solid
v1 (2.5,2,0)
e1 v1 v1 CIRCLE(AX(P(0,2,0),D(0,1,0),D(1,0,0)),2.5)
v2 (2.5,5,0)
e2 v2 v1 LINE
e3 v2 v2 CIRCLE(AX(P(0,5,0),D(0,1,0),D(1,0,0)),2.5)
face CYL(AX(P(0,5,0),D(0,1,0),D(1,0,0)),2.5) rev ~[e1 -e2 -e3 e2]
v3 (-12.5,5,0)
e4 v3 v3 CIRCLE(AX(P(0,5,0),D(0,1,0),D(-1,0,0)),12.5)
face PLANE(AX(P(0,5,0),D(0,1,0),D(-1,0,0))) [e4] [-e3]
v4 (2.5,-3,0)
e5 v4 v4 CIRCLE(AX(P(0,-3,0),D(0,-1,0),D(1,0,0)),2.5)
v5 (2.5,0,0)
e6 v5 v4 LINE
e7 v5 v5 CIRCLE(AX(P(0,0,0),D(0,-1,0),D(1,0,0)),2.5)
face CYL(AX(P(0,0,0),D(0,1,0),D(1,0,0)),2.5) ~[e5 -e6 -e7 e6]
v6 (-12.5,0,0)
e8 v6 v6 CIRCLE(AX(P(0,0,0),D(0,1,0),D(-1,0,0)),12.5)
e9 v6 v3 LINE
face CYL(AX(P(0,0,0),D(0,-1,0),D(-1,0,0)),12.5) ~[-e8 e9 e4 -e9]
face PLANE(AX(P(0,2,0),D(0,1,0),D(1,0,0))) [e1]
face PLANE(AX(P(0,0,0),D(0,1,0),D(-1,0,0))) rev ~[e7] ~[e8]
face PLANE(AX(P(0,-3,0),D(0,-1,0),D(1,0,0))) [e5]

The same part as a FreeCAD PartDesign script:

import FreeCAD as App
import Part
import Sketcher

V = App.Vector
Q = App.Units.Quantity

doc = App.newDocument("Part")
body = doc.addObject("PartDesign::Body", "Body")

# Sketch on XZ plane
sketch1 = body.newObject("Sketcher::SketchObject", "Sketch")
sketch1.AttachmentSupport = (doc.getObject("XZ_Plane"), [""])
sketch1.MapMode = "FlatFace"
sketch1.addGeometry(Part.Circle(V(0, 0, 0), V(0, 0, 1), 12), False)
sketch1.addConstraint(Sketcher.Constraint("Coincident", 0, 3, -1, 1))
sketch1.addConstraint(Sketcher.Constraint("Diameter", 0, Q("25 mm")))
pad1 = body.newObject("PartDesign::Pad", "Pad")
pad1.Profile = sketch1
pad1.Length = 5
pad1.Reversed = True

# Sketch on XZ plane
sketch2 = body.newObject("Sketcher::SketchObject", "Sketch001")
sketch2.AttachmentSupport = (doc.getObject("XZ_Plane"), [""])
sketch2.MapMode = "FlatFace"
sketch2.AttachmentOffset = App.Placement(V(0, 0, -5), App.Rotation())
sketch2.addGeometry(Part.Circle(V(0, 0, 0), V(0, 0, 1), 2.5), False)
sketch2.addConstraint(Sketcher.Constraint("Coincident", 0, 3, -1, 1))
sketch2.addConstraint(Sketcher.Constraint("Diameter", 0, Q("5 mm")))
pocket1 = body.newObject("PartDesign::Pocket", "Pocket")
pocket1.Profile = sketch2
pocket1.Length = 3
pocket1.Reversed = True

# Sketch on XZ plane
sketch3 = body.newObject("Sketcher::SketchObject", "Sketch002")
sketch3.AttachmentSupport = (doc.getObject("XZ_Plane"), [""])
sketch3.MapMode = "FlatFace"
sketch3.addGeometry(Part.Circle(V(0, 0, 0), V(0, 0, 1), 2.5), False)
sketch3.addConstraint(Sketcher.Constraint("Coincident", 0, 3, -1, 1))
sketch3.addConstraint(Sketcher.Constraint("Diameter", 0, Q("5 mm")))
pad2 = body.newObject("PartDesign::Pad", "Pad001")
pad2.Profile = sketch3
pad2.Length = 3

doc.recompute()
